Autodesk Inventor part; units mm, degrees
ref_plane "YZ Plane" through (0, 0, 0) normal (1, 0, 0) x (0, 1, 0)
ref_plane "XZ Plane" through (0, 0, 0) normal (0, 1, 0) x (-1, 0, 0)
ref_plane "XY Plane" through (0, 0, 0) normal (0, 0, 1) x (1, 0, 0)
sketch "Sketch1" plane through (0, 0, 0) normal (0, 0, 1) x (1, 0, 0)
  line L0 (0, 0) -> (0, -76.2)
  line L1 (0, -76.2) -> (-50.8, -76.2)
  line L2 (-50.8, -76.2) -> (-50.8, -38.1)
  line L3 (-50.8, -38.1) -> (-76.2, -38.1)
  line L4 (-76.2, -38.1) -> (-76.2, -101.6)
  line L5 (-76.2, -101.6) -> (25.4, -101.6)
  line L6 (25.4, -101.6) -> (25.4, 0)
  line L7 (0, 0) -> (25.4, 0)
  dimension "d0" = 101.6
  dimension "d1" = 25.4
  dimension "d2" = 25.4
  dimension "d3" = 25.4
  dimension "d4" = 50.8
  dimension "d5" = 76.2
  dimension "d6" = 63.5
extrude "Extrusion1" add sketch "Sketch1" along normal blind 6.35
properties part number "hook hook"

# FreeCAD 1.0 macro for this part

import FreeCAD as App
import Part
import Sketcher
Q = App.Units.Quantity

doc = App.newDocument("Part")
body = doc.addObject("PartDesign::Body", "Body")

# Sketch on XY plane
sketch1 = body.newObject("Sketcher::SketchObject", "Sketch")
sketch1.AttachmentSupport = (doc.getObject("XY_Plane"), [""])
sketch1.MapMode = "FlatFace"
sketch1.addGeometry([
    Part.LineSegment(App.Vector(25.4, 0, 0), App.Vector(0, 0, 0)),  # 0
    Part.LineSegment(App.Vector(0, 0, 0), App.Vector(0, -76.2, 0)),  # 1
    Part.LineSegment(App.Vector(0, -76.2, 0), App.Vector(-50.8, -76.2, 0)),  # 2
    Part.LineSegment(App.Vector(-50.8, -76.2, 0), App.Vector(-50.8, -38.1, 0)),  # 3
    Part.LineSegment(App.Vector(-50.8, -38.1, 0), App.Vector(-76.2, -38.1, 0)),  # 4
    Part.LineSegment(App.Vector(-76.2, -38.1, 0), App.Vector(-76.2, -101.6, 0)),  # 5
    Part.LineSegment(App.Vector(-76.2, -101.6, 0), App.Vector(25.4, -101.6, 0)),  # 6
    Part.LineSegment(App.Vector(25.4, -101.6, 0), App.Vector(25.4, 0, 0)),  # 7
], False)
sketch1.addConstraint([
    Sketcher.Constraint("Coincident", 0, 2, 1, 1),
    Sketcher.Constraint("Coincident", 1, 2, 2, 1),
    Sketcher.Constraint("Coincident", 2, 2, 3, 1),
    Sketcher.Constraint("Coincident", 3, 2, 4, 1),
    Sketcher.Constraint("Coincident", 4, 2, 5, 1),
    Sketcher.Constraint("Coincident", 5, 2, 6, 1),
    Sketcher.Constraint("Coincident", 6, 2, 7, 1),
    Sketcher.Constraint("Coincident", 7, 2, 0, 1),
    Sketcher.Constraint("Horizontal", 0),
    Sketcher.Constraint("Vertical", 1),
    Sketcher.Constraint("Horizontal", 2),
    Sketcher.Constraint("Vertical", 3),
    Sketcher.Constraint("Horizontal", 4),
    Sketcher.Constraint("Vertical", 5),
    Sketcher.Constraint("Horizontal", 6),
    Sketcher.Constraint("Vertical", 7),
    Sketcher.Constraint("Coincident", 0, 2, -1, 1),
    Sketcher.Constraint("Equal", 0, 4),
    Sketcher.Constraint("Equal", 6, 7),
    Sketcher.Constraint("DistanceX", 0, 2, 0, 1, Q("1 in")),
    Sketcher.Constraint("DistanceX", 2, 2, 2, 1, Q("2 in")),
    Sketcher.Constraint("DistanceY", 1, 2, 1, 1, Q("3 in")),
    Sketcher.Constraint("DistanceY", 5, 2, 5, 1, Q("2.5 in")),
])
pad1 = body.newObject("PartDesign::Pad", "Pad")
pad1.Profile = sketch1
pad1.Length = Q("0.25 in")

doc.recompute()
